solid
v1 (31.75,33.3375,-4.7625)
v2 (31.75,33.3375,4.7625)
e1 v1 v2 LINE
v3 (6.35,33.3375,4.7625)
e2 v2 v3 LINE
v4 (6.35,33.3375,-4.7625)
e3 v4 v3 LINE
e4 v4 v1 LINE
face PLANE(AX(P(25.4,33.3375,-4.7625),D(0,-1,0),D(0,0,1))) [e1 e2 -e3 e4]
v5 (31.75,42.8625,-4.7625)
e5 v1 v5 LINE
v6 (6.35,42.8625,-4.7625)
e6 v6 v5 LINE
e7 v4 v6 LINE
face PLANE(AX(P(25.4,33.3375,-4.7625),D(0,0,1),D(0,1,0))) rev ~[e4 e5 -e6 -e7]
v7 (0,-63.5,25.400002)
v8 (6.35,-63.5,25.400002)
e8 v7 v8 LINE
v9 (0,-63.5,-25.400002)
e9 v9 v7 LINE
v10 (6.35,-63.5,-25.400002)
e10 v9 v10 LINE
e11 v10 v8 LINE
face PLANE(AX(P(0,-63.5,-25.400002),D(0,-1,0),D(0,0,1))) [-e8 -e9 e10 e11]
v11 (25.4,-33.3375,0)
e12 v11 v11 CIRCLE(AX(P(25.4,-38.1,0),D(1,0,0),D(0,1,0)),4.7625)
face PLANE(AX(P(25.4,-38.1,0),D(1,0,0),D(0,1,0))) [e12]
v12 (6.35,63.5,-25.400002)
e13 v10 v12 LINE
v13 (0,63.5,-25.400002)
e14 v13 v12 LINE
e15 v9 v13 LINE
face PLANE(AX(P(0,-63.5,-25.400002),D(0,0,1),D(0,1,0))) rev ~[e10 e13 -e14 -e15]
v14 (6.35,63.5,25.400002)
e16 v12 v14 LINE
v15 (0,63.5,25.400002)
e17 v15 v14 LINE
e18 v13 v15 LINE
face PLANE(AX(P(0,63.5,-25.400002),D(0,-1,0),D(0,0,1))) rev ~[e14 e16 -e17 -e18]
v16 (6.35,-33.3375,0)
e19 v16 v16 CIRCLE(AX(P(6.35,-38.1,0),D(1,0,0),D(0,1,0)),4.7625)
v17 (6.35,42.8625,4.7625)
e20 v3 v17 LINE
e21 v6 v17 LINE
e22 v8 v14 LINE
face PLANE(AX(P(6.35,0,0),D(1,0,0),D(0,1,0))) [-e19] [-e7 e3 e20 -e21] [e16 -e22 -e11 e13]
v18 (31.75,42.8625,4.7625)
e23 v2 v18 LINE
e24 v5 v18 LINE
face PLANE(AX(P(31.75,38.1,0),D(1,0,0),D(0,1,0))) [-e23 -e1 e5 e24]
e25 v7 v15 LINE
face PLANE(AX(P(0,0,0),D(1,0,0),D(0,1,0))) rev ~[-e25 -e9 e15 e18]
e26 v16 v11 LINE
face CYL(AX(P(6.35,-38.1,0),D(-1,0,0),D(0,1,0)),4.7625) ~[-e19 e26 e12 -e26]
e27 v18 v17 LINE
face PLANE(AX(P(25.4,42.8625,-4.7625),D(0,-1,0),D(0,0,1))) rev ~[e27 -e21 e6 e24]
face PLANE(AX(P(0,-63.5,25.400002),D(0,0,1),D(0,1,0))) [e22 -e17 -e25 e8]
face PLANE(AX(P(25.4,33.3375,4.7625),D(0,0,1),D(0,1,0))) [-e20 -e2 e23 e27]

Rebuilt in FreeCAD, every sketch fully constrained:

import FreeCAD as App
import Part
import Sketcher
Q = App.Units.Quantity

doc = App.newDocument("Part")
body = doc.addObject("PartDesign::Body", "Body")

# Sketch on YZ plane
sketch1 = doc.addObject("Sketcher::SketchObject", "Sketch")
body.addObject(sketch1)
sketch1.AttachmentSupport = (doc.YZ_Plane, [""])
sketch1.MapMode = "FlatFace"
sketch1.addGeometry([
    Part.LineSegment(App.Vector(-64, 25, 0), App.Vector(-64, -25, 0)),
    Part.LineSegment(App.Vector(-64, -25, 0), App.Vector(64, -25, 0)),
    Part.LineSegment(App.Vector(64, -25, 0), App.Vector(64, 25, 0)),
    Part.LineSegment(App.Vector(64, 25, 0), App.Vector(-64, 25, 0)),
], False)
sketch1.addConstraint([
    Sketcher.Constraint("Coincident", 0, 2, 1, 1),
    Sketcher.Constraint("Coincident", 1, 2, 2, 1),
    Sketcher.Constraint("Coincident", 2, 2, 3, 1),
    Sketcher.Constraint("Coincident", 3, 2, 0, 1),
    Sketcher.Constraint("Vertical", 0),
    Sketcher.Constraint("Horizontal", 1),
    Sketcher.Constraint("Vertical", 2),
    Sketcher.Constraint("Horizontal", 3),
    Sketcher.Constraint("Symmetric", 0, 2, 2, 2, -1, 1),
    Sketcher.Constraint("DistanceX", 1, 1, 1, 2, Q("5 in")),
    Sketcher.Constraint("DistanceY", 0, 2, 0, 1, Q("2.0000002 in")),
])
pad1 = doc.addObject("PartDesign::Pad", "Pad")
body.addObject(pad1)
pad1.Profile = sketch1
pad1.Length = Q("0.25 in")

# Sketch on YZ plane
sketch2 = doc.addObject("Sketcher::SketchObject", "Sketch001")
body.addObject(sketch2)
sketch2.AttachmentSupport = (doc.YZ_Plane, [""])
sketch2.MapMode = "FlatFace"
sketch2.AttachmentOffset = App.Placement(App.Vector(0, 0, 0.25 * 25.4), App.Rotation())
sketch2.addGeometry([
    Part.Circle(App.Vector(-38.1, 0, 0), App.Vector(0, 0, 1), 4.8),  # 0
    Part.LineSegment(App.Vector(33.3, 4.8, 0), App.Vector(33.3, -4.8, 0)),  # 1
    Part.LineSegment(App.Vector(33.3, -4.8, 0), App.Vector(42.9, -4.8, 0)),  # 2
    Part.LineSegment(App.Vector(42.9, -4.8, 0), App.Vector(42.9, 4.8, 0)),  # 3
    Part.LineSegment(App.Vector(42.9, 4.8, 0), App.Vector(33.3, 4.8, 0)),  # 4
], False)
sketch2.addConstraint([
    Sketcher.Constraint("Coincident", 1, 2, 2, 1),
    Sketcher.Constraint("Coincident", 2, 2, 3, 1),
    Sketcher.Constraint("Coincident", 3, 2, 4, 1),
    Sketcher.Constraint("Coincident", 4, 2, 1, 1),
    Sketcher.Constraint("Vertical", 1),
    Sketcher.Constraint("Horizontal", 2),
    Sketcher.Constraint("Vertical", 3),
    Sketcher.Constraint("Horizontal", 4),
    Sketcher.Constraint("PointOnObject", 0, 3, -1),
    Sketcher.Constraint("Equal", 4, 1),
    Sketcher.Constraint("Diameter", 0, Q("0.375 in")),
    Sketcher.Constraint("DistanceX", 0, 3, -1, 1, Q("1.5 in")),
    Sketcher.Constraint("DistanceX", 2, 1, 2, 2, Q("0.375 in")),
    Sketcher.Constraint("DistanceX", -1, 1, 1, 2, Q("1.3125 in")),
    Sketcher.Constraint("DistanceY", 1, 2, -1, 1, Q("0.1875 in")),
])
pad2 = doc.addObject("PartDesign::Pad", "Pad001")
body.addObject(pad2)
pad2.Profile = sketch2
pad2.Length = Q("0.75 in")

# Sketch on YZ plane
sketch3 = doc.addObject("Sketcher::SketchObject", "Sketch002")
body.addObject(sketch3)
sketch3.AttachmentSupport = (doc.YZ_Plane, [""])
sketch3.MapMode = "FlatFace"
sketch3.AttachmentOffset = App.Placement(App.Vector(0, 0, 1 * 25.4), App.Rotation())
sketch3.addGeometry([
    Part.LineSegment(App.Vector(33, 5, 0), App.Vector(33, -5, 0)),
    Part.LineSegment(App.Vector(33, -5, 0), App.Vector(43, -5, 0)),
    Part.LineSegment(App.Vector(43, -5, 0), App.Vector(43, 5, 0)),
    Part.LineSegment(App.Vector(43, 5, 0), App.Vector(33, 5, 0)),
], False)
sketch3.addConstraint([
    Sketcher.Constraint("Coincident", 0, 2, 1, 1),
    Sketcher.Constraint("Coincident", 1, 2, 2, 1),
    Sketcher.Constraint("Coincident", 2, 2, 3, 1),
    Sketcher.Constraint("Coincident", 3, 2, 0, 1),
    Sketcher.Constraint("Vertical", 0),
    Sketcher.Constraint("Horizontal", 1),
    Sketcher.Constraint("Vertical", 2),
    Sketcher.Constraint("Horizontal", 3),
    Sketcher.Constraint("Equal", 3, 0),
    Sketcher.Constraint("DistanceX", 1, 1, 1, 2, Q("0.375 in")),
    Sketcher.Constraint("DistanceX", -1, 1, 0, 2, Q("1.3125 in")),
    Sketcher.Constraint("DistanceY", 0, 2, -1, 1, Q("0.1875 in")),
])
pad3 = doc.addObject("PartDesign::Pad", "Pad002")
body.addObject(pad3)
pad3.Profile = sketch3
pad3.Length = Q("0.25 in")

doc.recompute()
